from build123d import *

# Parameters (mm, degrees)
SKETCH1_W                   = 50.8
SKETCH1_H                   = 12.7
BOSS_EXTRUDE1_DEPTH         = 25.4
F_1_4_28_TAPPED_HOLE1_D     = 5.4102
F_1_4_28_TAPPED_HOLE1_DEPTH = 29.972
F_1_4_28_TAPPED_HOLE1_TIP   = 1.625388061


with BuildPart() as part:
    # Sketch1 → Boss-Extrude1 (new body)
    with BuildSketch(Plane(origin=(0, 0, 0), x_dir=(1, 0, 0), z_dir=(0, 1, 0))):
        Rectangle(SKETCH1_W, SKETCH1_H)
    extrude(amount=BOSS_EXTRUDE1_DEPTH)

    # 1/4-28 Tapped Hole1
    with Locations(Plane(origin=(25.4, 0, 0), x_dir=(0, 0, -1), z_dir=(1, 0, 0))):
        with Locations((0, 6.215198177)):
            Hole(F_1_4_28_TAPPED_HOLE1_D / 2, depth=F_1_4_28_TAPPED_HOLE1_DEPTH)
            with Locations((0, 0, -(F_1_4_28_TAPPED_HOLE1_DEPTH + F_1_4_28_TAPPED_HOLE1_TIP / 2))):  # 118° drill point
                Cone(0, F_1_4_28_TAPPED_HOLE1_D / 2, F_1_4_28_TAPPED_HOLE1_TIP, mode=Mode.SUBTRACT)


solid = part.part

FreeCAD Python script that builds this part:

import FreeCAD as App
import Part
import Sketcher

V = App.Vector
Q = App.Units.Quantity


def add_polygon(sketch, points):
    """Adds a closed chain of lines whose ends are joined by coincident constraints."""
    first, n = sketch.GeometryCount, len(points)
    for a, b in zip(points, points[1:] + points[:1]):
        sketch.addGeometry(Part.LineSegment(App.Vector(*a, 0), App.Vector(*b, 0)), False)
    for i in range(n):
        sketch.addConstraint(Sketcher.Constraint("Coincident", first + i, 2, first + (i + 1) % n, 1))

doc = App.newDocument("Part")
body = doc.addObject("PartDesign::Body", "Body")

# Sketch on XZ plane
sketch1 = body.newObject("Sketcher::SketchObject", "Sketch")
sketch1.AttachmentSupport = (doc.getObject("XZ_Plane"), [""])
sketch1.MapMode = "FlatFace"
add_polygon(sketch1, [(-25.4, -6.35), (-25.4, 6.35), (25.4, 6.35), (25.4, -6.35)])  # lines 0-3
sketch1.addConstraint([
    Sketcher.Constraint("Vertical", 0),
    Sketcher.Constraint("Horizontal", 1),
    Sketcher.Constraint("Vertical", 2),
    Sketcher.Constraint("Horizontal", 3),
    Sketcher.Constraint("Symmetric", 0, 2, 2, 2, -1, 1),
    Sketcher.Constraint("DistanceX", 1, 1, 1, 2, Q("2 in")),
    Sketcher.Constraint("DistanceY", 0, 1, 0, 2, Q("0.5 in")),
])
pad1 = body.newObject("PartDesign::Pad", "Pad")
pad1.Profile = sketch1
pad1.Length = Q("1 in")
pad1.Reversed = True

# Sketch on YZ plane
sketch2 = body.newObject("Sketcher::SketchObject", "Sketch001")
sketch2.AttachmentSupport = (doc.getObject("YZ_Plane"), [""])
sketch2.MapMode = "FlatFace"
sketch2.AttachmentOffset = App.Placement(V(0, 0, 1 * 25.4), App.Rotation())
sketch2.addGeometry(Part.Circle(V(6.215198, 0, 0), V(0, 0, 1), 2.7051), False)
sketch2.addConstraint([
    Sketcher.Constraint("PointOnObject", 0, 3, -1),
    Sketcher.Constraint("Diameter", 0, Q("0.213 in")),
    Sketcher.Constraint("DistanceX", -1, 1, 0, 3, Q("6.215198 mm")),
])
doc.recompute()
hole = body.newObject("PartDesign::Hole", "Hole")
hole.Profile = sketch2
hole.ThreadType = "None"
hole.Diameter = Q("0.213 in")
hole.DepthType = "Dimension"
hole.Depth = Q("1.18 in")
hole.DrillPoint = "Angled"
hole.DrillPointAngle = 118

doc.recompute()
